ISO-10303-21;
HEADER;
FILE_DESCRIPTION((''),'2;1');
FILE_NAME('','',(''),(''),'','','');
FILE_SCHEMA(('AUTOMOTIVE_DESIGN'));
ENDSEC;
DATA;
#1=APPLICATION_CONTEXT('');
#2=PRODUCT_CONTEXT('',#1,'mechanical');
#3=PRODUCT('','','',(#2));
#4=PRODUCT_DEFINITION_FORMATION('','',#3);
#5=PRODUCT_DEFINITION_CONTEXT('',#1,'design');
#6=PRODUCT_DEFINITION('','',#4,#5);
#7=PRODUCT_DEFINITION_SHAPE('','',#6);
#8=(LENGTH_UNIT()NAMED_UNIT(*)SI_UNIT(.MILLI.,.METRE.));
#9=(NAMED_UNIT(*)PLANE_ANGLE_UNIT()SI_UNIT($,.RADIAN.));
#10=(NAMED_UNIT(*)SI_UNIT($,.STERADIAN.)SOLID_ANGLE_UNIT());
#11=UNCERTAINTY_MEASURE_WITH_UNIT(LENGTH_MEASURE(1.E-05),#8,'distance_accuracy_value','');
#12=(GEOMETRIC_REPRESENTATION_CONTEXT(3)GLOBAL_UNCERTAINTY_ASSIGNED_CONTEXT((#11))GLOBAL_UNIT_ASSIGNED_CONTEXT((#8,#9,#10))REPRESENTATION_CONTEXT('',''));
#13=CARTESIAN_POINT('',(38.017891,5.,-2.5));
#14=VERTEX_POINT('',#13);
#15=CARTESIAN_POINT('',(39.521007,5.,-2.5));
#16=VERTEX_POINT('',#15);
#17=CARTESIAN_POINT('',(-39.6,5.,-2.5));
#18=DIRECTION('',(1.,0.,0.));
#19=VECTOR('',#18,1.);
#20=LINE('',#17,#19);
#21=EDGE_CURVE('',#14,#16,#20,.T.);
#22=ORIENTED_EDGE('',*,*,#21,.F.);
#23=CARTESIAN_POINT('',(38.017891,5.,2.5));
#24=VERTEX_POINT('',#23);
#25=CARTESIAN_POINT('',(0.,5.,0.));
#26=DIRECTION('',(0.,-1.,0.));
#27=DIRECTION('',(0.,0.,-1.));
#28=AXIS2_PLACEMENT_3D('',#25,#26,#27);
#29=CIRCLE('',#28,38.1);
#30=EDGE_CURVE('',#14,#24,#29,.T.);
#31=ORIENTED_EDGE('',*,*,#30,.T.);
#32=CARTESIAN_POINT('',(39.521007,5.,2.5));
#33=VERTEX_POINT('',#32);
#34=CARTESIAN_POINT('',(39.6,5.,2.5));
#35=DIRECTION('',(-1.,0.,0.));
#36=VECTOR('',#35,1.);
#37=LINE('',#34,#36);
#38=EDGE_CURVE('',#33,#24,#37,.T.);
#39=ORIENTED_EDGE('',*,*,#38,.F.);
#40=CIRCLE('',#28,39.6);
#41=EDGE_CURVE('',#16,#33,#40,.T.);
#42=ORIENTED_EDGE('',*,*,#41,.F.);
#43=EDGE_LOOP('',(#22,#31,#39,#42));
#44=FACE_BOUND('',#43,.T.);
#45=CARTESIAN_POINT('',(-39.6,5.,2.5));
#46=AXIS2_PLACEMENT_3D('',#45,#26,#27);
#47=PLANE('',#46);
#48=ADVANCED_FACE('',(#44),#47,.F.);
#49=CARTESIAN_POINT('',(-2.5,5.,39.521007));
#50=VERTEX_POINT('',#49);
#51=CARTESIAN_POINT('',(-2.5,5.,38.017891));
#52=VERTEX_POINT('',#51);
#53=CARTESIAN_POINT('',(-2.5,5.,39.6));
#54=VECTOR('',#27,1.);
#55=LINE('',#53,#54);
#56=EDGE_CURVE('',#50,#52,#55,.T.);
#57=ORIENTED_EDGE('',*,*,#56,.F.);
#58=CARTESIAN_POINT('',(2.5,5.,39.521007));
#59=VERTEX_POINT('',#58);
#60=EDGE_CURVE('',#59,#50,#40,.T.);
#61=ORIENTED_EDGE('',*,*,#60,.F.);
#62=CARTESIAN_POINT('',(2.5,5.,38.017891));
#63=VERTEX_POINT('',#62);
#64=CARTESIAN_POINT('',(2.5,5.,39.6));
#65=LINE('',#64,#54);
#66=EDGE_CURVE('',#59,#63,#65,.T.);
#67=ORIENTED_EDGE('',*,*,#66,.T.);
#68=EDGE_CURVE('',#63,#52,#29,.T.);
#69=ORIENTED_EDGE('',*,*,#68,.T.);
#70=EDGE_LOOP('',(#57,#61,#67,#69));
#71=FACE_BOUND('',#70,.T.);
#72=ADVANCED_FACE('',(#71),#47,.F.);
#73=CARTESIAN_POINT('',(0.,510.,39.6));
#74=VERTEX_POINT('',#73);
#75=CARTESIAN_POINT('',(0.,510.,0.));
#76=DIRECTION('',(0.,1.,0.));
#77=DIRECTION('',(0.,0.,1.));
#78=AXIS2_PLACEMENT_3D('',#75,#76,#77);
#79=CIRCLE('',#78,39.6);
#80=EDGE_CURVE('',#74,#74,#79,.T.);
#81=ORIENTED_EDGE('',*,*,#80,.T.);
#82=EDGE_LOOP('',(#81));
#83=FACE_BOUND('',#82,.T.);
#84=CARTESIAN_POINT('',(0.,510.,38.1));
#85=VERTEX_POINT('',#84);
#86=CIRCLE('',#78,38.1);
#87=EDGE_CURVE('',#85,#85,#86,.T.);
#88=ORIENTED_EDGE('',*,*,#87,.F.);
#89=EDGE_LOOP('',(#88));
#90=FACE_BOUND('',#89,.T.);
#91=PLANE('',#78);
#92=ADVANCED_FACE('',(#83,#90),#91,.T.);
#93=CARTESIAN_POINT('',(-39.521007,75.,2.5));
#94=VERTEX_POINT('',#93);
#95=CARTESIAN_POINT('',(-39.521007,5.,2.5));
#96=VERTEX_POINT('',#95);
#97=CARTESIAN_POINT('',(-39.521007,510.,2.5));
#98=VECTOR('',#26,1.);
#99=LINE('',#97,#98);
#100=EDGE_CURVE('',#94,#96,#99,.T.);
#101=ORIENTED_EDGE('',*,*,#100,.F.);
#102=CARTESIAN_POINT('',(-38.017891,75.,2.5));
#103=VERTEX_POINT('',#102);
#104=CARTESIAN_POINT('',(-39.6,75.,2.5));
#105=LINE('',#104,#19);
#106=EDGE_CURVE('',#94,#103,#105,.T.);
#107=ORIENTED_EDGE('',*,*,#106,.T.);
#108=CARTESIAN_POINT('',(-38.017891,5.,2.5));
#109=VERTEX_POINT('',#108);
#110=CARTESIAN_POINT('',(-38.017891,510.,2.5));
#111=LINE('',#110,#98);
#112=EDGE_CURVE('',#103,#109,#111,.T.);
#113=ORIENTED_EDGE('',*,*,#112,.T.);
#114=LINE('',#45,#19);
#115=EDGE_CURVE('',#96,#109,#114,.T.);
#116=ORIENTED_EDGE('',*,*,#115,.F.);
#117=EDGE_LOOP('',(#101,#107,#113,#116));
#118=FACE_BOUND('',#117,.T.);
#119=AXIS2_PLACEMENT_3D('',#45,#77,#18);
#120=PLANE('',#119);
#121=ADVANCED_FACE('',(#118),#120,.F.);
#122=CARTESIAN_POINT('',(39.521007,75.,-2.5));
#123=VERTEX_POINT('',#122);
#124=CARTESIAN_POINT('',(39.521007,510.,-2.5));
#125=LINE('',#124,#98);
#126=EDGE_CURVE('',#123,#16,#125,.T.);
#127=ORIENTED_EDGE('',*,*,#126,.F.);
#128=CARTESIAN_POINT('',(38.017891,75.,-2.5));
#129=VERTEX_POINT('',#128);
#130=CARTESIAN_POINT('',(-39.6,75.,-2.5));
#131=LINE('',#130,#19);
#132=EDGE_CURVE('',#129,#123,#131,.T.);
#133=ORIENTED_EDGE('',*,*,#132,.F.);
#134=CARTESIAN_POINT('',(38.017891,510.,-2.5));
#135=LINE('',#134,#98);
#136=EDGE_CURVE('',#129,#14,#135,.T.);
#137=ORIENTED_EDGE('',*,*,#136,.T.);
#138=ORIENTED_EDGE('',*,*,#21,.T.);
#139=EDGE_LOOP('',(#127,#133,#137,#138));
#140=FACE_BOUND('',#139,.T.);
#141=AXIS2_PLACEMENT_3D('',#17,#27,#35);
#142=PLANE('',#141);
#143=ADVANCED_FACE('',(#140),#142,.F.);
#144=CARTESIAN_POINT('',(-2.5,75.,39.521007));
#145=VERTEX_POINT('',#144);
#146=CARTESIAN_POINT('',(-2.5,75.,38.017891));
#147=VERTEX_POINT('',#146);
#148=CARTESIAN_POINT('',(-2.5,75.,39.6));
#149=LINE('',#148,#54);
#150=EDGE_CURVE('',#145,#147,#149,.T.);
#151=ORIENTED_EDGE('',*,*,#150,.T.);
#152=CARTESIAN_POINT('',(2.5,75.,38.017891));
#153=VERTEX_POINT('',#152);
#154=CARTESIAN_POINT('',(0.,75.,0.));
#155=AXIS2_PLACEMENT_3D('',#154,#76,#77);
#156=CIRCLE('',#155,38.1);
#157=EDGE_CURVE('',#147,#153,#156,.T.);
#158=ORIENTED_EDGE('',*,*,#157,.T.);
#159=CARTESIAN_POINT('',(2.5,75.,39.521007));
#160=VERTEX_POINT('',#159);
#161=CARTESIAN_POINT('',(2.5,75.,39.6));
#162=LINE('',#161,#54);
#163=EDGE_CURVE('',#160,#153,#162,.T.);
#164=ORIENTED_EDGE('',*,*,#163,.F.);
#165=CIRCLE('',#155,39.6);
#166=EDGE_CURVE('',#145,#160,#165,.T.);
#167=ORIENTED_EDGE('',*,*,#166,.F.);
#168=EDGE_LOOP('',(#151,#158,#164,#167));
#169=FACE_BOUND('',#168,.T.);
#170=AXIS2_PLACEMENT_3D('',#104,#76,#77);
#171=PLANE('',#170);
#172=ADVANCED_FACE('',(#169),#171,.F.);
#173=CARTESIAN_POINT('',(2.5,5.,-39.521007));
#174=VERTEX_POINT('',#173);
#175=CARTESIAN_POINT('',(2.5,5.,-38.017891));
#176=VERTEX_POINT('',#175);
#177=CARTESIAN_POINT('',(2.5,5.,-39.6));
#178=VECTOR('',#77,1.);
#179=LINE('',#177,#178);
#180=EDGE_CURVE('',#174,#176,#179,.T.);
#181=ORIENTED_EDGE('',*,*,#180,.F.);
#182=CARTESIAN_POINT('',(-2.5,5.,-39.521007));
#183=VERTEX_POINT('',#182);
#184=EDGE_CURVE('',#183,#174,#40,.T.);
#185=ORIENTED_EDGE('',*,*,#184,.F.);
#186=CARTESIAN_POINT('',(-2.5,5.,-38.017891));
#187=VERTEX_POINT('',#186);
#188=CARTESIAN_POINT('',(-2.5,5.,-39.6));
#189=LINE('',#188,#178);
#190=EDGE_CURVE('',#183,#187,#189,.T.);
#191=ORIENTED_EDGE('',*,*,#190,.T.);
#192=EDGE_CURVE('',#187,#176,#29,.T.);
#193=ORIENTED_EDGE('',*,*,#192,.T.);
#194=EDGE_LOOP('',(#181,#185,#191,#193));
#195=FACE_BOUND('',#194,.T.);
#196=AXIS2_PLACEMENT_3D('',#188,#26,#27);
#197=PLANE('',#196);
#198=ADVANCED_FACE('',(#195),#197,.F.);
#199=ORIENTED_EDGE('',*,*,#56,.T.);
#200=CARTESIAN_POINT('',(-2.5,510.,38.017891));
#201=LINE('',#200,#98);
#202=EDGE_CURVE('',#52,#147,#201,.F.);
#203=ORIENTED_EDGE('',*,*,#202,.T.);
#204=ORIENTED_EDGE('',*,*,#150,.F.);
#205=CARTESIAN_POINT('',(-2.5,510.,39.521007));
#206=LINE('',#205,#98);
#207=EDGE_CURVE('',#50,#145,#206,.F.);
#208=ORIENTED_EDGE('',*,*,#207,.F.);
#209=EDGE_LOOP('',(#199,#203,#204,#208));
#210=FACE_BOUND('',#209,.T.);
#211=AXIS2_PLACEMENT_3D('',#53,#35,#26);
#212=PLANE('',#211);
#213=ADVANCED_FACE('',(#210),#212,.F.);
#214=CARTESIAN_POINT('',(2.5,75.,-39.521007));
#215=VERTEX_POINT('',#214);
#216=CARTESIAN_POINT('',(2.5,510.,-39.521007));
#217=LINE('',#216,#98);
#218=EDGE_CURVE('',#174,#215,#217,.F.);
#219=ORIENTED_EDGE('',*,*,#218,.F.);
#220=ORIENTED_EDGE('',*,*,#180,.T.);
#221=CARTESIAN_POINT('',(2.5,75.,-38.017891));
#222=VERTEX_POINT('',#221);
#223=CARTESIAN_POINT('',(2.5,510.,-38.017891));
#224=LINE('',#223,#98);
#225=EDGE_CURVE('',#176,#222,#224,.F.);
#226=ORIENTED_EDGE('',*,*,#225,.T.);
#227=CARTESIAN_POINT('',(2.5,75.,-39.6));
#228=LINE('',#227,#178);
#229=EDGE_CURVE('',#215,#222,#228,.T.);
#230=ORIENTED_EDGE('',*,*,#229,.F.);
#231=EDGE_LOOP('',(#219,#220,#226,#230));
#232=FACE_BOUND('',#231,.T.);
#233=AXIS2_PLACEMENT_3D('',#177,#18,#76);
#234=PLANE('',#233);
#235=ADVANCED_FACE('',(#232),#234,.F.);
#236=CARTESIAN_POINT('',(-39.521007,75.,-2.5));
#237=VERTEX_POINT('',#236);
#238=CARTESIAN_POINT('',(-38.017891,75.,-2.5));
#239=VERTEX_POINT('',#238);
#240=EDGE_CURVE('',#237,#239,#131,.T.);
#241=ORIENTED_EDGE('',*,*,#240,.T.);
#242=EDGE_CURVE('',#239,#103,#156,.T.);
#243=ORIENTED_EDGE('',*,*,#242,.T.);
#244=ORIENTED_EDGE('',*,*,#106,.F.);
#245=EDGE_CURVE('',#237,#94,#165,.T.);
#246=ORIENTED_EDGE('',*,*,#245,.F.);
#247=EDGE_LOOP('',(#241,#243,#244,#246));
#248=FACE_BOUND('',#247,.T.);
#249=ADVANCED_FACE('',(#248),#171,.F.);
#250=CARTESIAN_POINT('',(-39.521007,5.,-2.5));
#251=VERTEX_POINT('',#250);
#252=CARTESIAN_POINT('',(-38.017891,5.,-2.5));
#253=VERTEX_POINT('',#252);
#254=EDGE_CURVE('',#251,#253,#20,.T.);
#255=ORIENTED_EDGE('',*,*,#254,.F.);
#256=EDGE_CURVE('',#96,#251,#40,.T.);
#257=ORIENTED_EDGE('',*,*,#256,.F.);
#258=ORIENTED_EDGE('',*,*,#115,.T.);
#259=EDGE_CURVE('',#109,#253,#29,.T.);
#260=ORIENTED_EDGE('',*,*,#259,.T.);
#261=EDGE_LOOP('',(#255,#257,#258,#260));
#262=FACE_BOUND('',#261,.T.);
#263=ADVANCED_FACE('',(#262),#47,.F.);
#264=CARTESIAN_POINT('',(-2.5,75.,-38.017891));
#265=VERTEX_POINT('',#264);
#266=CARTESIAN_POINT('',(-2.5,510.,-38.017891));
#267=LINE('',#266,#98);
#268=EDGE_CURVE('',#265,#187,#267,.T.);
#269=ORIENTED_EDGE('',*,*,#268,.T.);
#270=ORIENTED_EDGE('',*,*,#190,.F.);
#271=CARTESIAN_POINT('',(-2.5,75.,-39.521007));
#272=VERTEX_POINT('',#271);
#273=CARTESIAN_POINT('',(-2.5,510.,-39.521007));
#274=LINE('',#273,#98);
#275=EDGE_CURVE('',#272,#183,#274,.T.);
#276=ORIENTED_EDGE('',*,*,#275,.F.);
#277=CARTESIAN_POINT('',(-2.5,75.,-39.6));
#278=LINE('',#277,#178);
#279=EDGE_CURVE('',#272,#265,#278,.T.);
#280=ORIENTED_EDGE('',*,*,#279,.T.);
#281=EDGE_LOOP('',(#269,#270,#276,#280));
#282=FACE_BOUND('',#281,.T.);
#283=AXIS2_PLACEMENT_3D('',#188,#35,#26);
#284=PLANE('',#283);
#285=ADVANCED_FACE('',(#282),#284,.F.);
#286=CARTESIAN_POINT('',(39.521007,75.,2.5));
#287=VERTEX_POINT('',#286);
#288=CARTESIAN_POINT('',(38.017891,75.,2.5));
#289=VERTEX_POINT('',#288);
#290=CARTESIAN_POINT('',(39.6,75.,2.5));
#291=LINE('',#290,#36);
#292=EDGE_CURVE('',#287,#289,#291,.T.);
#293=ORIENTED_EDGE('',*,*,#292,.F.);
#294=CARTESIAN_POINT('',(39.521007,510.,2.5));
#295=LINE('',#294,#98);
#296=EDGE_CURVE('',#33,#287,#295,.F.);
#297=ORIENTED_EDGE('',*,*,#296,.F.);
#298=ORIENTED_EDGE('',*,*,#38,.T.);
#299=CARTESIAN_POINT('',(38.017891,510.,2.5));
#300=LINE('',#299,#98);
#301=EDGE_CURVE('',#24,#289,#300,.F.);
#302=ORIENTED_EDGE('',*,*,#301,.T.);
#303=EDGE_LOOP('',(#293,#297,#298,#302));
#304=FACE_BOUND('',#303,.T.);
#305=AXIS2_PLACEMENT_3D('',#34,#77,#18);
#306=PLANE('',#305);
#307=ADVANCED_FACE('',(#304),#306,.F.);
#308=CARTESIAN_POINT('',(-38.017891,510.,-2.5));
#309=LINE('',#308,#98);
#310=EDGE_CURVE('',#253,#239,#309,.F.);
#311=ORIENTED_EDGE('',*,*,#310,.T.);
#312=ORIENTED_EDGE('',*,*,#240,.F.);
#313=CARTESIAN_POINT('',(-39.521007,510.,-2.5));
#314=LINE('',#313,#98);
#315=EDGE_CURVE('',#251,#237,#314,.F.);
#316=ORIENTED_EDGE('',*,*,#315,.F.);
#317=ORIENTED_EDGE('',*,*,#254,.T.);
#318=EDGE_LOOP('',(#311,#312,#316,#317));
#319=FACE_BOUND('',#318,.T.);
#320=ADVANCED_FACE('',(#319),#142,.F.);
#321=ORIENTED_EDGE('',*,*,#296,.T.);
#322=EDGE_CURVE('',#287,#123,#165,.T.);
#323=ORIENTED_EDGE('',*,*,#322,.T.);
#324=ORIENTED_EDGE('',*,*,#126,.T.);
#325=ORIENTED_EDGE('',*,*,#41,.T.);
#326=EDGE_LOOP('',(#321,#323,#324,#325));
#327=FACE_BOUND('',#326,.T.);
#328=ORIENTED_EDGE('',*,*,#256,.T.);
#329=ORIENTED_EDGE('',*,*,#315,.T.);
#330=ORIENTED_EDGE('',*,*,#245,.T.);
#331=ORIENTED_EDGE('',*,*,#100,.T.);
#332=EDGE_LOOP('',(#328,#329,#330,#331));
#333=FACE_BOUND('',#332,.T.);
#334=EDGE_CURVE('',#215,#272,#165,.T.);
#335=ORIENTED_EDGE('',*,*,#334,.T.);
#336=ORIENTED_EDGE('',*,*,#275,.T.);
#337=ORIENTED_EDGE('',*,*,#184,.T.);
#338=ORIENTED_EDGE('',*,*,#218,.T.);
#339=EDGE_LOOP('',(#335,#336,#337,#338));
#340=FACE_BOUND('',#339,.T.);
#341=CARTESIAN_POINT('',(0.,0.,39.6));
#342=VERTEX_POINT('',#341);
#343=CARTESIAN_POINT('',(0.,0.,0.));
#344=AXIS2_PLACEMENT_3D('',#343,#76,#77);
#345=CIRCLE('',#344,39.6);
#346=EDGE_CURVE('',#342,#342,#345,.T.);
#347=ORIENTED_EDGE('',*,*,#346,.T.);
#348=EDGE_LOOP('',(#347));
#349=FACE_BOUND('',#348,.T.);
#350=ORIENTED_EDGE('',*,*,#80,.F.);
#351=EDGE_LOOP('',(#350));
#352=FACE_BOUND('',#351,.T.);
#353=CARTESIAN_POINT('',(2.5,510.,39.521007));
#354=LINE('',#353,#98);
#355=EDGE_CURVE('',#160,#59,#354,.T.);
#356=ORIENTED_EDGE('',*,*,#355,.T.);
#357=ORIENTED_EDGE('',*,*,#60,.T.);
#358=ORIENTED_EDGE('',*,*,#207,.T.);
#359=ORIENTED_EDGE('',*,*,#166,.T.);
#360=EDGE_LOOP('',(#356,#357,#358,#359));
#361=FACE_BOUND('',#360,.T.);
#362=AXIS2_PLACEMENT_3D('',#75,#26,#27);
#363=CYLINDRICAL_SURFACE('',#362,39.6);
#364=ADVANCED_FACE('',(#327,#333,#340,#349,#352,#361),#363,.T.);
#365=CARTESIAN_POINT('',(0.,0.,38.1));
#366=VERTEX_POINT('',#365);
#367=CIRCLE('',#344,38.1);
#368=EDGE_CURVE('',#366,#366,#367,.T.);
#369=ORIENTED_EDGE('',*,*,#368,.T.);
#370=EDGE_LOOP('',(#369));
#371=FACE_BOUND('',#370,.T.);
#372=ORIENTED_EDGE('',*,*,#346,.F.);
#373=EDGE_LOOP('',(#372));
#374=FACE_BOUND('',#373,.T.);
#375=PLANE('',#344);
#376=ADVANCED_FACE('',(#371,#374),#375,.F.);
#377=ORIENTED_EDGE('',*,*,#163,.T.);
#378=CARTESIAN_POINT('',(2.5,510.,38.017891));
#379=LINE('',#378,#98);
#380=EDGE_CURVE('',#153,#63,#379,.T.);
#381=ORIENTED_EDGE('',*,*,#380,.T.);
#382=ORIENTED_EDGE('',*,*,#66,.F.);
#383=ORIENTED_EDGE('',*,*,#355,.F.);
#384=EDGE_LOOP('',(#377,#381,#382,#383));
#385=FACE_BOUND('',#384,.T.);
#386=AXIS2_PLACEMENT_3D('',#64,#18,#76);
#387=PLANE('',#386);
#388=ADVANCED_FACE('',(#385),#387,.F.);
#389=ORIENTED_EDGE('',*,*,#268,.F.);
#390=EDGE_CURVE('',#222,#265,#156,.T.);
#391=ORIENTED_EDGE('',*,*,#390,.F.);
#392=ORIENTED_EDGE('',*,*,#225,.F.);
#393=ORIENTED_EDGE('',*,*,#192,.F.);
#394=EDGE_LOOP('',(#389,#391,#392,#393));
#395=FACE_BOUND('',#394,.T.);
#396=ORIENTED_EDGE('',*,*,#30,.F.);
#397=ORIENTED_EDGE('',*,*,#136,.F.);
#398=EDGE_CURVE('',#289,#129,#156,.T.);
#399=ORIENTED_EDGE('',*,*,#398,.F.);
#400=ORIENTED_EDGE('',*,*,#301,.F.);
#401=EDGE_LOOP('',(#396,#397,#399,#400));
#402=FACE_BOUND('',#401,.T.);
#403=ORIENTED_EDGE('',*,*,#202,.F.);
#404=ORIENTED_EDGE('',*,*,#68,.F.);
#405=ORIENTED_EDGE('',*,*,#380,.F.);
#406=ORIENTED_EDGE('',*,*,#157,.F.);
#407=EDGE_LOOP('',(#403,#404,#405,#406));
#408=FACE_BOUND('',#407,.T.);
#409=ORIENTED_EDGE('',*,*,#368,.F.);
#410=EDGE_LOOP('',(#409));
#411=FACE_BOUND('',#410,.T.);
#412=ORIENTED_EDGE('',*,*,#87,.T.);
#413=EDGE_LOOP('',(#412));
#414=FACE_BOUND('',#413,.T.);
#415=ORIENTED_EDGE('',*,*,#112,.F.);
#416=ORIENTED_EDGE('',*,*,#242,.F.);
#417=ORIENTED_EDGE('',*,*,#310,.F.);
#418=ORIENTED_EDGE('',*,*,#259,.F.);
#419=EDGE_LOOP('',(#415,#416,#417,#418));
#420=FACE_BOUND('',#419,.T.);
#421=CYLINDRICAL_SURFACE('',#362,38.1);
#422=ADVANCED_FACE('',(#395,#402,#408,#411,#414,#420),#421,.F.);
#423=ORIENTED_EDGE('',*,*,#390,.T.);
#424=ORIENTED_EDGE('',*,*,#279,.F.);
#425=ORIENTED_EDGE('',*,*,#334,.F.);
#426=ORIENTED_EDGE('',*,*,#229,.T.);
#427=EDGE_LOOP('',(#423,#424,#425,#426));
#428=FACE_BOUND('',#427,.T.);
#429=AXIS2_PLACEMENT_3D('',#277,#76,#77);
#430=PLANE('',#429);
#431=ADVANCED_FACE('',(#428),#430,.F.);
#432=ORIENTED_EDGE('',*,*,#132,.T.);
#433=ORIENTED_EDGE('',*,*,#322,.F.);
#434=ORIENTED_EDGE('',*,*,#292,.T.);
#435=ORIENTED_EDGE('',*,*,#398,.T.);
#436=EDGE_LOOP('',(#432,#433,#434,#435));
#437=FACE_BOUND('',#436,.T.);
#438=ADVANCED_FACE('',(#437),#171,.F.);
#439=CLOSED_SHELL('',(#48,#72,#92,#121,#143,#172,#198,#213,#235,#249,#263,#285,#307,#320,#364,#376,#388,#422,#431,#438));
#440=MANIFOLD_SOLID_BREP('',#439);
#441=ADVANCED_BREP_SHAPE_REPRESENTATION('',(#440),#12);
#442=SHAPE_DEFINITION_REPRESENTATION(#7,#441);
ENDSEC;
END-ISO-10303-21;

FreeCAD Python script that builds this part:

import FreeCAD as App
import Part
import Sketcher

V = App.Vector

doc = App.newDocument("Part")
body = doc.addObject("PartDesign::Body", "Body")

sketch1 = body.newObject("Sketcher::SketchObject", "Sketch")
sketch1.AttachmentSupport = (doc.getObject("XZ_Plane"), [""])
sketch1.MapMode = "FlatFace"
sketch1.addGeometry([
    Part.Circle(V(0, 0, 0), V(0, 0, 1), 40),
    Part.Circle(V(0, 0, 0), V(0, 0, 1), 38),
], False)
sketch1.addConstraint([
    Sketcher.Constraint("Coincident", 0, 3, -1, 1),
    Sketcher.Constraint("Coincident", 1, 3, -1, 1),
    Sketcher.Constraint("Diameter", 0, 79.2),
    Sketcher.Constraint("Diameter", 1, 76.2),
])
pad1 = body.newObject("PartDesign::Pad", "Pad")
pad1.Profile = sketch1
pad1.Length = 510
pad1.Reversed = True

sketch2 = body.newObject("Sketcher::SketchObject", "Sketch001")
sketch2.AttachmentSupport = (doc.getObject("XY_Plane"), [""])
sketch2.MapMode = "FlatFace"
sketch2.addGeometry([
    Part.LineSegment(V(-2, 75, 0), V(-2, 5, 0)),
    Part.LineSegment(V(-2, 5, 0), V(2, 5, 0)),
    Part.LineSegment(V(2, 5, 0), V(2, 75, 0)),
    Part.LineSegment(V(2, 75, 0), V(-2, 75, 0)),
], False)
sketch2.addConstraint([
    Sketcher.Constraint("Coincident", 0, 2, 1, 1),
    Sketcher.Constraint("Coincident", 1, 2, 2, 1),
    Sketcher.Constraint("Coincident", 2, 2, 3, 1),
    Sketcher.Constraint("Coincident", 3, 2, 0, 1),
    Sketcher.Constraint("Vertical", 0),
    Sketcher.Constraint("Horizontal", 1),
    Sketcher.Constraint("Vertical", 2),
    Sketcher.Constraint("Horizontal", 3),
    Sketcher.Constraint("DistanceX", 1, 1, 1, 2, 5.0),
    Sketcher.Constraint("DistanceY", 0, 2, 0, 1, 70.0),
    Sketcher.Constraint("DistanceY", -1, 1, 0, 2, 5.0),
    Sketcher.Constraint("DistanceX", 0, 2, -1, 1, 2.5),
])
pocket1 = body.newObject("PartDesign::Pocket", "Pocket")
pocket1.Profile = sketch2
pocket1.Type = "ThroughAll"
doc.recompute()

polarpattern = body.newObject("PartDesign::PolarPattern", "PolarPattern")
polarpattern.Originals = [pocket1]
polarpattern.Axis = (doc.getObject("Y_Axis"), [""])
polarpattern.Angle = 360
polarpattern.Occurrences = 4
body.Tip = polarpattern

doc.recompute()
